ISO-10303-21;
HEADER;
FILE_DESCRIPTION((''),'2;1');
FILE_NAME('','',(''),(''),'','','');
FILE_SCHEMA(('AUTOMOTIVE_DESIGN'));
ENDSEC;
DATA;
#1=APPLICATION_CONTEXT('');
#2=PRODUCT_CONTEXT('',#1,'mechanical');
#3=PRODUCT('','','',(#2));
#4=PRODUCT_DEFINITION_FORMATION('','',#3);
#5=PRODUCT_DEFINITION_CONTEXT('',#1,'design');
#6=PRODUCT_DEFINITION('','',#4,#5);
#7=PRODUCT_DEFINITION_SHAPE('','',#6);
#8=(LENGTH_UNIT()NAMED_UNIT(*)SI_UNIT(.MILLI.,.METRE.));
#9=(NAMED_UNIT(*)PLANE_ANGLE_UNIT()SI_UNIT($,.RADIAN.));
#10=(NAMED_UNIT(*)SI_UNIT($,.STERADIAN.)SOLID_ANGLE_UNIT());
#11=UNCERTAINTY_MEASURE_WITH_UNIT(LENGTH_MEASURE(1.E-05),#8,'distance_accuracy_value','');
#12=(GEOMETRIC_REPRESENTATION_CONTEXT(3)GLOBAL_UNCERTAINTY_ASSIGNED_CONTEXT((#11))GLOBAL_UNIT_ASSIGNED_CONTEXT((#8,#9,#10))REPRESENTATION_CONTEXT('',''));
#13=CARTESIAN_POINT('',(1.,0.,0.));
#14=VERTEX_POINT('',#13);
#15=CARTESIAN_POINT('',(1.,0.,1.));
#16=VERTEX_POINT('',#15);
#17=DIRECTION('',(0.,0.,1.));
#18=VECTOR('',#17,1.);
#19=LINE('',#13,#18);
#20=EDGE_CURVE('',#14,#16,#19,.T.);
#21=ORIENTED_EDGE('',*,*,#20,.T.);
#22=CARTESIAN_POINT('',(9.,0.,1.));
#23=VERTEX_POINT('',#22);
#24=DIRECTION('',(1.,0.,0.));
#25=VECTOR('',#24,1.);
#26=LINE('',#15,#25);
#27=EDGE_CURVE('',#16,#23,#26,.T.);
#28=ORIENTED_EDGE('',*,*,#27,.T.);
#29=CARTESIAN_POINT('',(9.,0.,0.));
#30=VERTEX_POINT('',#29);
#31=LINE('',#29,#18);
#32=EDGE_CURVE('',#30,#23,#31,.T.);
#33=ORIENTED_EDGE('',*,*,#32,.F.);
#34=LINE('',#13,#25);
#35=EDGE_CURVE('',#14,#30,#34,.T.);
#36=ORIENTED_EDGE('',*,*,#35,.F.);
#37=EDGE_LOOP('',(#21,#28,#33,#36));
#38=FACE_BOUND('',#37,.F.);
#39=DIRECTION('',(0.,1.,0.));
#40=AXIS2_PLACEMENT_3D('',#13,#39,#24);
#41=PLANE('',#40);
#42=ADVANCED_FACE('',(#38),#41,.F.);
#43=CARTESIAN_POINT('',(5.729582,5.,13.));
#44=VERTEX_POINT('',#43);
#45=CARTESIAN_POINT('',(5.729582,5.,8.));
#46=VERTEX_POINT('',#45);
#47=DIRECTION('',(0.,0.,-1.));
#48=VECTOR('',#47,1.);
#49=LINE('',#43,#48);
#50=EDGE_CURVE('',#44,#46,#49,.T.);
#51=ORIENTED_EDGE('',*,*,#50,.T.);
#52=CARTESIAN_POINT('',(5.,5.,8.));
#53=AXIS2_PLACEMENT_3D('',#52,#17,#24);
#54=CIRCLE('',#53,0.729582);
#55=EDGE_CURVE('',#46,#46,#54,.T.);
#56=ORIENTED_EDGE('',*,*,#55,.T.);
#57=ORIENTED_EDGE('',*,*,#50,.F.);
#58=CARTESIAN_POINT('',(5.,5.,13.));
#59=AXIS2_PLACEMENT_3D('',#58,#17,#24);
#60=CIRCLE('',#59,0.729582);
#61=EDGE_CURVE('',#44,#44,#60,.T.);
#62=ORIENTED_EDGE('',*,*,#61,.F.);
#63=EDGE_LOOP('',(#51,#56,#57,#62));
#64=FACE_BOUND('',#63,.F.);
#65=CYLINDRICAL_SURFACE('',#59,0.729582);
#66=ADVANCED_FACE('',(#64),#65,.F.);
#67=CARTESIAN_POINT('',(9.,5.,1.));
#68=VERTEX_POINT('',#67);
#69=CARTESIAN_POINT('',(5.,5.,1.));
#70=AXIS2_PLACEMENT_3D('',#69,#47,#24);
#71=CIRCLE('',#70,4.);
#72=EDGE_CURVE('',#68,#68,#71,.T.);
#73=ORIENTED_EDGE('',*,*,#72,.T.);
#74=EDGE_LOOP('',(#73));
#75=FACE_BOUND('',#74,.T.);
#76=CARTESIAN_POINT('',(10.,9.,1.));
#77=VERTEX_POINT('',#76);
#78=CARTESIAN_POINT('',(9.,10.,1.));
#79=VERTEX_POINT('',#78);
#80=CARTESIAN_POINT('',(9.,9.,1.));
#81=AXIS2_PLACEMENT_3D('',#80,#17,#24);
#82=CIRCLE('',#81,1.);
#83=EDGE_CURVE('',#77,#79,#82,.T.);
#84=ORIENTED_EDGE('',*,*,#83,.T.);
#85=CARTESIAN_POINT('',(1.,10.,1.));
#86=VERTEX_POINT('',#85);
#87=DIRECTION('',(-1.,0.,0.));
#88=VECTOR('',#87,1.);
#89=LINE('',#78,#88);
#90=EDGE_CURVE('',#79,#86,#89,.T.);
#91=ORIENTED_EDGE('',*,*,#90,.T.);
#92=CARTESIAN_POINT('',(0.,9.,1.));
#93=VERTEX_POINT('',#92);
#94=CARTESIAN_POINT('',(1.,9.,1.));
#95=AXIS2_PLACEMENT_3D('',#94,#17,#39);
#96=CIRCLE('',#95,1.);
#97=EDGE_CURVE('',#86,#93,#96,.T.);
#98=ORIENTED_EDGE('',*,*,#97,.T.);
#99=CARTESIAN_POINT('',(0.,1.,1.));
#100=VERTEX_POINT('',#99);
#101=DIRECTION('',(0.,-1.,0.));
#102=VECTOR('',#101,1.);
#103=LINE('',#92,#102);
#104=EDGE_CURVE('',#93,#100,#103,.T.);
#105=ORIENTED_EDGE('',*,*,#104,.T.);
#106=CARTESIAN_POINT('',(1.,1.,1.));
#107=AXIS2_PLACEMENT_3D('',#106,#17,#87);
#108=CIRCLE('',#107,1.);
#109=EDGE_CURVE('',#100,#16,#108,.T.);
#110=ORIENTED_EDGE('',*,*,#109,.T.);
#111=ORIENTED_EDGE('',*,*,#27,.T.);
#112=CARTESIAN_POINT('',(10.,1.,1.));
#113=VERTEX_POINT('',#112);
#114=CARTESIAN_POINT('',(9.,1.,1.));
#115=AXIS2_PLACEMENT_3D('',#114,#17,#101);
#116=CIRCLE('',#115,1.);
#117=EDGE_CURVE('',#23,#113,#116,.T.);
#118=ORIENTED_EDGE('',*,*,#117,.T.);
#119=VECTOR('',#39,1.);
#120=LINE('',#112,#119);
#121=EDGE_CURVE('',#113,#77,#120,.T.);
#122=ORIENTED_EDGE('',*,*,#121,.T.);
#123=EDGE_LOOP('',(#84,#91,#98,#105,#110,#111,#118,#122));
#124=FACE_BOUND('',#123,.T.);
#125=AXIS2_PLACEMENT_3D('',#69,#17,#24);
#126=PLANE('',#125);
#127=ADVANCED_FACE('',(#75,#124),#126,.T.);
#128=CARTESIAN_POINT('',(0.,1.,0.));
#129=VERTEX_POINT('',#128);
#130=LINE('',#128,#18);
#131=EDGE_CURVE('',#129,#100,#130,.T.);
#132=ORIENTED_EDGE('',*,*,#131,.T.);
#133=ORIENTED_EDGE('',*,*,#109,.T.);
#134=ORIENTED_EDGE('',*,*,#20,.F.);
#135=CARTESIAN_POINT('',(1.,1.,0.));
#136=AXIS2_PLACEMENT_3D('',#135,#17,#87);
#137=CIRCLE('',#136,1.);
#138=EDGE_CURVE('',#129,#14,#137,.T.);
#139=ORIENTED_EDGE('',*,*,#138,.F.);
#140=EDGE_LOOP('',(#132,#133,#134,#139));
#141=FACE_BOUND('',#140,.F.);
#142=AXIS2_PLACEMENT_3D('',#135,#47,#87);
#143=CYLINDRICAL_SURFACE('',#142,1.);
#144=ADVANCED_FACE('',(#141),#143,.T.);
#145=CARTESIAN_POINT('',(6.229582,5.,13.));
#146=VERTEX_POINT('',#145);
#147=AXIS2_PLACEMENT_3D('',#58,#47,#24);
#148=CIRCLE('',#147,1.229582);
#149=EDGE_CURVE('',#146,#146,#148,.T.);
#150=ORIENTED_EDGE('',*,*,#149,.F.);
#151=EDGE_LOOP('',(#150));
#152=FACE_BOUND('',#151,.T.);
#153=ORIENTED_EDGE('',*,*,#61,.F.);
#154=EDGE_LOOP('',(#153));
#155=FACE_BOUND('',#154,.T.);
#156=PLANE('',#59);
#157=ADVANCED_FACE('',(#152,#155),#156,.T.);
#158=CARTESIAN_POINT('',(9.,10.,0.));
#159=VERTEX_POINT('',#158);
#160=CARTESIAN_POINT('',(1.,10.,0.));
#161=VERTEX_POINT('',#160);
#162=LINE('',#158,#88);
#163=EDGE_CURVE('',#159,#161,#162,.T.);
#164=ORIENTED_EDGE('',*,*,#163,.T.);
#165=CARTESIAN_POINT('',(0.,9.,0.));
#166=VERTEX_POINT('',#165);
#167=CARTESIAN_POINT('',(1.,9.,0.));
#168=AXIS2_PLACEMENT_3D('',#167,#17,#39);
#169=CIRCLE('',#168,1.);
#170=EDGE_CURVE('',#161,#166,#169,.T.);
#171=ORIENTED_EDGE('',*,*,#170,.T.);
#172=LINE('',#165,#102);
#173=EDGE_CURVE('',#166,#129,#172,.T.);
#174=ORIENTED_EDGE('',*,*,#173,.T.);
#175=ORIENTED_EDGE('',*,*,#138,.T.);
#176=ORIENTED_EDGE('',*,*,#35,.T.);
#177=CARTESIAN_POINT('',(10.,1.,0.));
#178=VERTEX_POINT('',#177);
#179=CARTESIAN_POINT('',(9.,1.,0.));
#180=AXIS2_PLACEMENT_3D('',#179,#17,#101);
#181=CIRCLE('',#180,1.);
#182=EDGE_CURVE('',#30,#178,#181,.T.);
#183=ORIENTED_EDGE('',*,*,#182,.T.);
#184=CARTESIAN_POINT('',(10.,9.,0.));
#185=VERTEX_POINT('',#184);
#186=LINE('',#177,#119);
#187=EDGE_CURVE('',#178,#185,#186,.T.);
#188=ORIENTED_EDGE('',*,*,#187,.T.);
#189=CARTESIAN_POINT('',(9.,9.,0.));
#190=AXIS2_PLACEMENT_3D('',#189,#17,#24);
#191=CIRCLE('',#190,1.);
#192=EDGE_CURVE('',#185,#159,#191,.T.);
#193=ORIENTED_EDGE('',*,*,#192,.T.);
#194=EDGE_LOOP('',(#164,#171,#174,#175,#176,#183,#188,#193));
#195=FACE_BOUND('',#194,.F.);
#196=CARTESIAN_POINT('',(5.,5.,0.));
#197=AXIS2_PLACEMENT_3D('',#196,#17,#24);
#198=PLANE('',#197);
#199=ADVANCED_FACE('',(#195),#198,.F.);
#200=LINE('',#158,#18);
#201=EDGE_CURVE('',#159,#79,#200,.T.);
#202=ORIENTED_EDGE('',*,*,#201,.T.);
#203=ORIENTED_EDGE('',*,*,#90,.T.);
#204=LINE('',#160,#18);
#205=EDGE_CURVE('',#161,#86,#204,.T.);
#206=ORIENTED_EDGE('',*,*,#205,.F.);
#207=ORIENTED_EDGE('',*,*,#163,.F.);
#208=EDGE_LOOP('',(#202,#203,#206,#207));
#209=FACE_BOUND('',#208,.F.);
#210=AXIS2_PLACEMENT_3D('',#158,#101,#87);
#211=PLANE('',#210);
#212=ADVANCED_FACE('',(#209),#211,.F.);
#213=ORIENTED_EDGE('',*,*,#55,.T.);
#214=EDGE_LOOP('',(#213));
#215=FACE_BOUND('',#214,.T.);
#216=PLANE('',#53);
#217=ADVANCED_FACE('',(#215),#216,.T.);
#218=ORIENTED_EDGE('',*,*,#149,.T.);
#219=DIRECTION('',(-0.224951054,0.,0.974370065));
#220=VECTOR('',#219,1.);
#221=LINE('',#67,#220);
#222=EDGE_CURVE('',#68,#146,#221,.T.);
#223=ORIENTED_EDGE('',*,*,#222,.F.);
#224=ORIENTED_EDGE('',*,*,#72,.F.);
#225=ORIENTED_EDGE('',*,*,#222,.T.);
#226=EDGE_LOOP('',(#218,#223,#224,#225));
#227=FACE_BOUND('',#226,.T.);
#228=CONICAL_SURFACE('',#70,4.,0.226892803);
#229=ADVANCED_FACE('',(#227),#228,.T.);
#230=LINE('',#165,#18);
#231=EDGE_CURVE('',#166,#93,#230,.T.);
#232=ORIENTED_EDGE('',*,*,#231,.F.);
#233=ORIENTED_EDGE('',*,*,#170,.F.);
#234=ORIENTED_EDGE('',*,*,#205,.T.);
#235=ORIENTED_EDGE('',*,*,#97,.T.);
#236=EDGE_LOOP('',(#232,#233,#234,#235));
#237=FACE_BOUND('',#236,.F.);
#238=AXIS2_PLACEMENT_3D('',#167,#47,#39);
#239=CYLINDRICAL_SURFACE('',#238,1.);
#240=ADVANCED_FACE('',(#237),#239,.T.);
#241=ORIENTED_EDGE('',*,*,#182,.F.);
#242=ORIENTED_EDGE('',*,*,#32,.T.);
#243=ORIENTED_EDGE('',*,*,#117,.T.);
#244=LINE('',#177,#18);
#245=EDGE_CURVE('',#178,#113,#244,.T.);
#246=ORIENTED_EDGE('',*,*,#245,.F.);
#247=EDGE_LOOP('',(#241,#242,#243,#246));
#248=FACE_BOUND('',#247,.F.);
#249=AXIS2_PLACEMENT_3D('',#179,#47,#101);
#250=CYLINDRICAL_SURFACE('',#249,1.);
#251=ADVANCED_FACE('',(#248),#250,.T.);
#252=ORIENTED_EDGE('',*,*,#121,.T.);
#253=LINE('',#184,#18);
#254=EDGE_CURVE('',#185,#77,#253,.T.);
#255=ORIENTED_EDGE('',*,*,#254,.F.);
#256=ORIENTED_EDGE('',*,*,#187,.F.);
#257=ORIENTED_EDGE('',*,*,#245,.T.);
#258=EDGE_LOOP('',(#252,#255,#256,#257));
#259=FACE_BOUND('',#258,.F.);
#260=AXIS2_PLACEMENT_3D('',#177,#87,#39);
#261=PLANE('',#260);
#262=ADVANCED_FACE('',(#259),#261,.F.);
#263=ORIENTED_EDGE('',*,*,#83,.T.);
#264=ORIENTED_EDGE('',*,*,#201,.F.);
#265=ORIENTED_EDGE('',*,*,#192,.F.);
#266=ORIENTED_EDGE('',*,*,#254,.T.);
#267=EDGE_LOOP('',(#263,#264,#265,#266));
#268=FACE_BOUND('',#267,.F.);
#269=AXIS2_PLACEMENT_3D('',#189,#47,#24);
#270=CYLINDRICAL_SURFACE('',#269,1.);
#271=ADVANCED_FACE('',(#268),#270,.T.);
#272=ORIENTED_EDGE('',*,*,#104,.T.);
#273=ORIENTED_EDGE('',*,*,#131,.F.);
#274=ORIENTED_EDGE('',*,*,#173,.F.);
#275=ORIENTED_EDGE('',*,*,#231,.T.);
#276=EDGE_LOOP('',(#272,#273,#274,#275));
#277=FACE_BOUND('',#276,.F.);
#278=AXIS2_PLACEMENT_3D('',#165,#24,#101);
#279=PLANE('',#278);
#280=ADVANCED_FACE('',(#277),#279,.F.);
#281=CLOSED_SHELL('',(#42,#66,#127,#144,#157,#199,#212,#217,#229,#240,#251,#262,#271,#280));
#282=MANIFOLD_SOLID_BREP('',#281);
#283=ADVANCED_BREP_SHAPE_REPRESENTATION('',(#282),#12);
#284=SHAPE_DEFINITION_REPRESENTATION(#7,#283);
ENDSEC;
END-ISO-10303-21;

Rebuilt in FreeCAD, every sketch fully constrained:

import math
import FreeCAD as App
import Part
import Sketcher

V = App.Vector

doc = App.newDocument("Part")
body = doc.addObject("PartDesign::Body", "Body")

# Sketch on XY plane
sketch1 = doc.addObject("Sketcher::SketchObject", "Sketch")
body.addObject(sketch1)
sketch1.AttachmentSupport = (doc.XY_Plane, [""])
sketch1.MapMode = "FlatFace"
sketch1.addGeometry(Part.ArcOfCircle(Part.Circle(V(1, 1, 0), V(0, 0, 1), 1), math.radians(180), math.radians(270)), False)
sketch1.addGeometry(Part.LineSegment(V(1, 0, 0), V(9, 0, 0)), False)
sketch1.addGeometry(Part.ArcOfCircle(Part.Circle(V(9, 1, 0), V(0, 0, 1), 1), math.radians(-90), math.radians(0)), False)
sketch1.addGeometry(Part.LineSegment(V(10, 1, 0), V(10, 9, 0)), False)
sketch1.addGeometry(Part.ArcOfCircle(Part.Circle(V(9, 9, 0), V(0, 0, 1), 1), math.radians(0), math.radians(90)), False)
sketch1.addGeometry(Part.LineSegment(V(9, 10, 0), V(1, 10, 0)), False)
sketch1.addGeometry(Part.ArcOfCircle(Part.Circle(V(1, 9, 0), V(0, 0, 1), 1), math.radians(90), math.radians(180)), False)
sketch1.addGeometry(Part.LineSegment(V(0, 9, 0), V(0, 1, 0)), False)
sketch1.addConstraint(Sketcher.Constraint("Tangent", 0, 2, 1, 1))
sketch1.addConstraint(Sketcher.Constraint("Tangent", 1, 2, 2, 1))
sketch1.addConstraint(Sketcher.Constraint("Tangent", 2, 2, 3, 1))
sketch1.addConstraint(Sketcher.Constraint("Tangent", 3, 2, 4, 1))
sketch1.addConstraint(Sketcher.Constraint("Tangent", 4, 2, 5, 1))
sketch1.addConstraint(Sketcher.Constraint("Tangent", 5, 2, 6, 1))
sketch1.addConstraint(Sketcher.Constraint("Tangent", 6, 2, 7, 1))
sketch1.addConstraint(Sketcher.Constraint("Tangent", 7, 2, 0, 1))
sketch1.addConstraint(Sketcher.Constraint("Horizontal", 1))
sketch1.addConstraint(Sketcher.Constraint("Vertical", 3))
sketch1.addConstraint(Sketcher.Constraint("Horizontal", 5))
sketch1.addConstraint(Sketcher.Constraint("Vertical", 7))
sketch1.addConstraint(Sketcher.Constraint("Equal", 0, 2))
sketch1.addConstraint(Sketcher.Constraint("Equal", 2, 4))
sketch1.addConstraint(Sketcher.Constraint("Equal", 4, 6))
sketch1.addConstraint(Sketcher.Constraint("PointOnObject", 0, 2, -1))
sketch1.addConstraint(Sketcher.Constraint("PointOnObject", 6, 2, -2))
sketch1.addConstraint(Sketcher.Constraint("Equal", 5, 3))
sketch1.addConstraint(Sketcher.Constraint("Radius", 0, 1.0))
sketch1.addConstraint(Sketcher.Constraint("DistanceX", 1, 1, 1, 2, 8.0))
pad1 = doc.addObject("PartDesign::Pad", "Pad")
body.addObject(pad1)
pad1.Profile = sketch1
pad1.Length = 1

# Sketch on XY plane
sketch2 = doc.addObject("Sketcher::SketchObject", "Sketch001")
body.addObject(sketch2)
sketch2.AttachmentSupport = (doc.XY_Plane, [""])
sketch2.MapMode = "FlatFace"
sketch2.AttachmentOffset = App.Placement(V(0, 0, 1), App.Rotation())
sketch2.addGeometry(Part.Circle(V(5, 5, 0), V(0, 0, 1), 4), False)
sketch2.addConstraint(Sketcher.Constraint("Diameter", 0, 8.0))
sketch2.addConstraint(Sketcher.Constraint("DistanceX", -1, 1, 0, 3, 5.0))
sketch2.addConstraint(Sketcher.Constraint("DistanceY", -1, 1, 0, 3, 5.0))
pad2 = doc.addObject("PartDesign::Pad", "Pad001")
body.addObject(pad2)
pad2.Profile = sketch2
pad2.Length = 12
pad2.TaperAngle = -13

# Sketch on XY plane
sketch3 = doc.addObject("Sketcher::SketchObject", "Sketch002")
body.addObject(sketch3)
sketch3.AttachmentSupport = (doc.XY_Plane, [""])
sketch3.MapMode = "FlatFace"
sketch3.AttachmentOffset = App.Placement(V(0, 0, 13), App.Rotation())
sketch3.addGeometry(Part.Circle(V(5, 5, 0), V(0, 0, 1), 0.7), False)
sketch3.addConstraint(Sketcher.Constraint("DistanceX", -1, 1, 0, 3, 5.0))
sketch3.addConstraint(Sketcher.Constraint("DistanceY", -1, 1, 0, 3, 5.0))
sketch3.addConstraint(Sketcher.Constraint("Diameter", 0, 1.459163))
pocket1 = doc.addObject("PartDesign::Pocket", "Pocket")
body.addObject(pocket1)
pocket1.Profile = sketch3
pocket1.Length = 5

doc.recompute()
